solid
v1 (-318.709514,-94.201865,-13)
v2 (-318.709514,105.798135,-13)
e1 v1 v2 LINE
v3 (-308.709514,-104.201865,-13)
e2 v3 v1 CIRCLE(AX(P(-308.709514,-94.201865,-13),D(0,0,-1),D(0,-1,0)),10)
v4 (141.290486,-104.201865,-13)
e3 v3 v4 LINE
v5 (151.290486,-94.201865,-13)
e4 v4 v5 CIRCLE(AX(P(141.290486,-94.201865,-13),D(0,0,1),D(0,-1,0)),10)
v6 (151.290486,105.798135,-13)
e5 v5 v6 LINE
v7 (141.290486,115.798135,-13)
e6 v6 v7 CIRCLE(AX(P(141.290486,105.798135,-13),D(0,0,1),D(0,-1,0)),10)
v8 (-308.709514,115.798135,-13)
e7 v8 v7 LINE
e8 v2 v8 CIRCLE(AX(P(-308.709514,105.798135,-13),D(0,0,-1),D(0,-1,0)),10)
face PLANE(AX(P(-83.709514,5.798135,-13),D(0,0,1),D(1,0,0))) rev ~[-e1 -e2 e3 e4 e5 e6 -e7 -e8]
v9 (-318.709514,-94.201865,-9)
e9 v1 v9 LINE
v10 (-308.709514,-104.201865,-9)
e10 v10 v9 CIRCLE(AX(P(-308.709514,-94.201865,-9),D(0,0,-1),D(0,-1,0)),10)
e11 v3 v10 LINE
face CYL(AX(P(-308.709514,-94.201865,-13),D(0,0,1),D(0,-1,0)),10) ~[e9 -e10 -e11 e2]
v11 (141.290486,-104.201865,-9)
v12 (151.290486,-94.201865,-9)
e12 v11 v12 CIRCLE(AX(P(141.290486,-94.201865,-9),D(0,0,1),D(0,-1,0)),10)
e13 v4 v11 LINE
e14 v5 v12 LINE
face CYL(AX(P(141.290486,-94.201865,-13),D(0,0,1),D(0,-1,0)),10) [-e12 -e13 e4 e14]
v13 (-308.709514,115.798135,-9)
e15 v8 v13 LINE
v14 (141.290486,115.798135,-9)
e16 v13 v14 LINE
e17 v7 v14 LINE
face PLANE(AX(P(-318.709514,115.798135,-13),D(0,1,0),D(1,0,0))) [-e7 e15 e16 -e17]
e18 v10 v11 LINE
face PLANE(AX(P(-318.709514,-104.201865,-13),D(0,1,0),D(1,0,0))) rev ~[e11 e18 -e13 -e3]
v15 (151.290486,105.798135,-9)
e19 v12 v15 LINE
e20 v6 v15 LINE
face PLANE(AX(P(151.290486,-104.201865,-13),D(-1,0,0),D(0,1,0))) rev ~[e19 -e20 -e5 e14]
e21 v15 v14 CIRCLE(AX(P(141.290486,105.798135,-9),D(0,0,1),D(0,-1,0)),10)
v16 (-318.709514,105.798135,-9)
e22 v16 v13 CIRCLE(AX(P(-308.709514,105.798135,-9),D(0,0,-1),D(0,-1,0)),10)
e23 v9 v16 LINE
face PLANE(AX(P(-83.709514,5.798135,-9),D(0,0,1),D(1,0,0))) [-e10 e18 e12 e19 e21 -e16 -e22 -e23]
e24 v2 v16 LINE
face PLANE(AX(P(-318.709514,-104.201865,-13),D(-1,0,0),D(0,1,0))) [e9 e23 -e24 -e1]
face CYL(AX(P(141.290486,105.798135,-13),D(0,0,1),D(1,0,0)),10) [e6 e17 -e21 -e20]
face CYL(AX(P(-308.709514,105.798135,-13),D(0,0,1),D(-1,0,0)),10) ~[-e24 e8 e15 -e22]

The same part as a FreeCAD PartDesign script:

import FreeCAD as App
import Part
import Sketcher
from FreeCAD import Vector


def edges_at(feature, points):
    """Names of the edges that pass closest to the given points."""
    edges = feature.Shape.Edges
    near = lambda p: min(range(len(edges)), key=lambda i: edges[i].distToShape(Part.Vertex(*p))[0])
    return sorted({f"Edge{near(p) + 1}" for p in points})


def add_polygon(sketch, points):
    """Adds a closed chain of lines whose ends are joined by coincident constraints."""
    first, n = sketch.GeometryCount, len(points)
    for a, b in zip(points, points[1:] + points[:1]):
        sketch.addGeometry(Part.LineSegment(App.Vector(*a, 0), App.Vector(*b, 0)), False)
    for i in range(n):
        sketch.addConstraint(Sketcher.Constraint("Coincident", first + i, 2, first + (i + 1) % n, 1))

doc = App.newDocument("Part")
params = doc.addObject("Spreadsheet::Sheet", "Params")
for row, (alias, value) in enumerate([
    ("sketch1_width", "470 mm"),
    ("sketch1_height", "220 mm"),
    ("pad1_length", "4 mm"),
    ("fillet_radius", "10 mm"),
    ("fillet2_radius", "10 mm"),
    ("fillet3_radius", "10 mm"),
    ("fillet4_radius", "10 mm"),
], start=1):
    params.set(f"A{row}", alias)
    params.set(f"B{row}", "=" + value)
    params.setAlias(f"B{row}", alias)

body = doc.addObject("PartDesign::Body", "Body")

# Sketch on XY plane
sketch1 = body.newObject("Sketcher::SketchObject", "Sketch")
sketch1.AttachmentSupport = (doc.getObject("XY_Plane"), [""])
sketch1.MapMode = "FlatFace"
add_polygon(sketch1, [(-122, 116), (-122, -104), (348, -104), (348, 116)])  # lines 0-3
sketch1.addConstraint([
    Sketcher.Constraint("Vertical", 0),
    Sketcher.Constraint("Horizontal", 1),
    Sketcher.Constraint("Vertical", 2),
    Sketcher.Constraint("Horizontal", 3),
    Sketcher.Constraint("DistanceX", 1, 1, 1, 2, 470.0),
    Sketcher.Constraint("DistanceY", 0, 2, 0, 1, 220.0),
    Sketcher.Constraint("DistanceX", 0, 2, -1, 1, 121.709514),
    Sketcher.Constraint("DistanceY", 0, 2, -1, 1, 103.701865),
])
sketch1.setExpression("Constraints[8]", "Params.sketch1_width")
sketch1.setExpression("Constraints[9]", "Params.sketch1_height")
pad1 = body.newObject("PartDesign::Pad", "Pad")
pad1.Profile = sketch1
pad1.setExpression("Length", "Params.pad1_length")
doc.recompute()

fillet = body.newObject("PartDesign::Fillet", "Fillet")
fillet.Base = (pad1, edges_at(pad1, [(348.29, -103.702, 2)]))
fillet.setExpression("Radius", "Params.fillet_radius")
doc.recompute()

fillet2 = body.newObject("PartDesign::Fillet", "Fillet001")
fillet2.Base = (fillet, edges_at(fillet, [(348.29, 116.298, 2)]))
fillet2.setExpression("Radius", "Params.fillet2_radius")
doc.recompute()

fillet3 = body.newObject("PartDesign::Fillet", "Fillet002")
fillet3.Base = (fillet2, edges_at(fillet2, [(-121.71, -103.702, 2)]))
fillet3.setExpression("Radius", "Params.fillet3_radius")
doc.recompute()

fillet4 = body.newObject("PartDesign::Fillet", "Fillet003")
fillet4.Base = (fillet3, edges_at(fillet3, [(-121.71, 116.298, 2)]))
fillet4.setExpression("Radius", "Params.fillet4_radius")
body2 = doc.addObject("PartDesign::Body", "Body001")
doc.recompute()

body.Placement = App.Placement(Vector(-197, -0.5, -13), App.Rotation(Vector(0, 0, 1), 0))
boolean = body2.newObject("PartDesign::Boolean", "Boolean")
boolean.Type = "Fuse"
boolean.addObjects([body])

doc.recompute()
